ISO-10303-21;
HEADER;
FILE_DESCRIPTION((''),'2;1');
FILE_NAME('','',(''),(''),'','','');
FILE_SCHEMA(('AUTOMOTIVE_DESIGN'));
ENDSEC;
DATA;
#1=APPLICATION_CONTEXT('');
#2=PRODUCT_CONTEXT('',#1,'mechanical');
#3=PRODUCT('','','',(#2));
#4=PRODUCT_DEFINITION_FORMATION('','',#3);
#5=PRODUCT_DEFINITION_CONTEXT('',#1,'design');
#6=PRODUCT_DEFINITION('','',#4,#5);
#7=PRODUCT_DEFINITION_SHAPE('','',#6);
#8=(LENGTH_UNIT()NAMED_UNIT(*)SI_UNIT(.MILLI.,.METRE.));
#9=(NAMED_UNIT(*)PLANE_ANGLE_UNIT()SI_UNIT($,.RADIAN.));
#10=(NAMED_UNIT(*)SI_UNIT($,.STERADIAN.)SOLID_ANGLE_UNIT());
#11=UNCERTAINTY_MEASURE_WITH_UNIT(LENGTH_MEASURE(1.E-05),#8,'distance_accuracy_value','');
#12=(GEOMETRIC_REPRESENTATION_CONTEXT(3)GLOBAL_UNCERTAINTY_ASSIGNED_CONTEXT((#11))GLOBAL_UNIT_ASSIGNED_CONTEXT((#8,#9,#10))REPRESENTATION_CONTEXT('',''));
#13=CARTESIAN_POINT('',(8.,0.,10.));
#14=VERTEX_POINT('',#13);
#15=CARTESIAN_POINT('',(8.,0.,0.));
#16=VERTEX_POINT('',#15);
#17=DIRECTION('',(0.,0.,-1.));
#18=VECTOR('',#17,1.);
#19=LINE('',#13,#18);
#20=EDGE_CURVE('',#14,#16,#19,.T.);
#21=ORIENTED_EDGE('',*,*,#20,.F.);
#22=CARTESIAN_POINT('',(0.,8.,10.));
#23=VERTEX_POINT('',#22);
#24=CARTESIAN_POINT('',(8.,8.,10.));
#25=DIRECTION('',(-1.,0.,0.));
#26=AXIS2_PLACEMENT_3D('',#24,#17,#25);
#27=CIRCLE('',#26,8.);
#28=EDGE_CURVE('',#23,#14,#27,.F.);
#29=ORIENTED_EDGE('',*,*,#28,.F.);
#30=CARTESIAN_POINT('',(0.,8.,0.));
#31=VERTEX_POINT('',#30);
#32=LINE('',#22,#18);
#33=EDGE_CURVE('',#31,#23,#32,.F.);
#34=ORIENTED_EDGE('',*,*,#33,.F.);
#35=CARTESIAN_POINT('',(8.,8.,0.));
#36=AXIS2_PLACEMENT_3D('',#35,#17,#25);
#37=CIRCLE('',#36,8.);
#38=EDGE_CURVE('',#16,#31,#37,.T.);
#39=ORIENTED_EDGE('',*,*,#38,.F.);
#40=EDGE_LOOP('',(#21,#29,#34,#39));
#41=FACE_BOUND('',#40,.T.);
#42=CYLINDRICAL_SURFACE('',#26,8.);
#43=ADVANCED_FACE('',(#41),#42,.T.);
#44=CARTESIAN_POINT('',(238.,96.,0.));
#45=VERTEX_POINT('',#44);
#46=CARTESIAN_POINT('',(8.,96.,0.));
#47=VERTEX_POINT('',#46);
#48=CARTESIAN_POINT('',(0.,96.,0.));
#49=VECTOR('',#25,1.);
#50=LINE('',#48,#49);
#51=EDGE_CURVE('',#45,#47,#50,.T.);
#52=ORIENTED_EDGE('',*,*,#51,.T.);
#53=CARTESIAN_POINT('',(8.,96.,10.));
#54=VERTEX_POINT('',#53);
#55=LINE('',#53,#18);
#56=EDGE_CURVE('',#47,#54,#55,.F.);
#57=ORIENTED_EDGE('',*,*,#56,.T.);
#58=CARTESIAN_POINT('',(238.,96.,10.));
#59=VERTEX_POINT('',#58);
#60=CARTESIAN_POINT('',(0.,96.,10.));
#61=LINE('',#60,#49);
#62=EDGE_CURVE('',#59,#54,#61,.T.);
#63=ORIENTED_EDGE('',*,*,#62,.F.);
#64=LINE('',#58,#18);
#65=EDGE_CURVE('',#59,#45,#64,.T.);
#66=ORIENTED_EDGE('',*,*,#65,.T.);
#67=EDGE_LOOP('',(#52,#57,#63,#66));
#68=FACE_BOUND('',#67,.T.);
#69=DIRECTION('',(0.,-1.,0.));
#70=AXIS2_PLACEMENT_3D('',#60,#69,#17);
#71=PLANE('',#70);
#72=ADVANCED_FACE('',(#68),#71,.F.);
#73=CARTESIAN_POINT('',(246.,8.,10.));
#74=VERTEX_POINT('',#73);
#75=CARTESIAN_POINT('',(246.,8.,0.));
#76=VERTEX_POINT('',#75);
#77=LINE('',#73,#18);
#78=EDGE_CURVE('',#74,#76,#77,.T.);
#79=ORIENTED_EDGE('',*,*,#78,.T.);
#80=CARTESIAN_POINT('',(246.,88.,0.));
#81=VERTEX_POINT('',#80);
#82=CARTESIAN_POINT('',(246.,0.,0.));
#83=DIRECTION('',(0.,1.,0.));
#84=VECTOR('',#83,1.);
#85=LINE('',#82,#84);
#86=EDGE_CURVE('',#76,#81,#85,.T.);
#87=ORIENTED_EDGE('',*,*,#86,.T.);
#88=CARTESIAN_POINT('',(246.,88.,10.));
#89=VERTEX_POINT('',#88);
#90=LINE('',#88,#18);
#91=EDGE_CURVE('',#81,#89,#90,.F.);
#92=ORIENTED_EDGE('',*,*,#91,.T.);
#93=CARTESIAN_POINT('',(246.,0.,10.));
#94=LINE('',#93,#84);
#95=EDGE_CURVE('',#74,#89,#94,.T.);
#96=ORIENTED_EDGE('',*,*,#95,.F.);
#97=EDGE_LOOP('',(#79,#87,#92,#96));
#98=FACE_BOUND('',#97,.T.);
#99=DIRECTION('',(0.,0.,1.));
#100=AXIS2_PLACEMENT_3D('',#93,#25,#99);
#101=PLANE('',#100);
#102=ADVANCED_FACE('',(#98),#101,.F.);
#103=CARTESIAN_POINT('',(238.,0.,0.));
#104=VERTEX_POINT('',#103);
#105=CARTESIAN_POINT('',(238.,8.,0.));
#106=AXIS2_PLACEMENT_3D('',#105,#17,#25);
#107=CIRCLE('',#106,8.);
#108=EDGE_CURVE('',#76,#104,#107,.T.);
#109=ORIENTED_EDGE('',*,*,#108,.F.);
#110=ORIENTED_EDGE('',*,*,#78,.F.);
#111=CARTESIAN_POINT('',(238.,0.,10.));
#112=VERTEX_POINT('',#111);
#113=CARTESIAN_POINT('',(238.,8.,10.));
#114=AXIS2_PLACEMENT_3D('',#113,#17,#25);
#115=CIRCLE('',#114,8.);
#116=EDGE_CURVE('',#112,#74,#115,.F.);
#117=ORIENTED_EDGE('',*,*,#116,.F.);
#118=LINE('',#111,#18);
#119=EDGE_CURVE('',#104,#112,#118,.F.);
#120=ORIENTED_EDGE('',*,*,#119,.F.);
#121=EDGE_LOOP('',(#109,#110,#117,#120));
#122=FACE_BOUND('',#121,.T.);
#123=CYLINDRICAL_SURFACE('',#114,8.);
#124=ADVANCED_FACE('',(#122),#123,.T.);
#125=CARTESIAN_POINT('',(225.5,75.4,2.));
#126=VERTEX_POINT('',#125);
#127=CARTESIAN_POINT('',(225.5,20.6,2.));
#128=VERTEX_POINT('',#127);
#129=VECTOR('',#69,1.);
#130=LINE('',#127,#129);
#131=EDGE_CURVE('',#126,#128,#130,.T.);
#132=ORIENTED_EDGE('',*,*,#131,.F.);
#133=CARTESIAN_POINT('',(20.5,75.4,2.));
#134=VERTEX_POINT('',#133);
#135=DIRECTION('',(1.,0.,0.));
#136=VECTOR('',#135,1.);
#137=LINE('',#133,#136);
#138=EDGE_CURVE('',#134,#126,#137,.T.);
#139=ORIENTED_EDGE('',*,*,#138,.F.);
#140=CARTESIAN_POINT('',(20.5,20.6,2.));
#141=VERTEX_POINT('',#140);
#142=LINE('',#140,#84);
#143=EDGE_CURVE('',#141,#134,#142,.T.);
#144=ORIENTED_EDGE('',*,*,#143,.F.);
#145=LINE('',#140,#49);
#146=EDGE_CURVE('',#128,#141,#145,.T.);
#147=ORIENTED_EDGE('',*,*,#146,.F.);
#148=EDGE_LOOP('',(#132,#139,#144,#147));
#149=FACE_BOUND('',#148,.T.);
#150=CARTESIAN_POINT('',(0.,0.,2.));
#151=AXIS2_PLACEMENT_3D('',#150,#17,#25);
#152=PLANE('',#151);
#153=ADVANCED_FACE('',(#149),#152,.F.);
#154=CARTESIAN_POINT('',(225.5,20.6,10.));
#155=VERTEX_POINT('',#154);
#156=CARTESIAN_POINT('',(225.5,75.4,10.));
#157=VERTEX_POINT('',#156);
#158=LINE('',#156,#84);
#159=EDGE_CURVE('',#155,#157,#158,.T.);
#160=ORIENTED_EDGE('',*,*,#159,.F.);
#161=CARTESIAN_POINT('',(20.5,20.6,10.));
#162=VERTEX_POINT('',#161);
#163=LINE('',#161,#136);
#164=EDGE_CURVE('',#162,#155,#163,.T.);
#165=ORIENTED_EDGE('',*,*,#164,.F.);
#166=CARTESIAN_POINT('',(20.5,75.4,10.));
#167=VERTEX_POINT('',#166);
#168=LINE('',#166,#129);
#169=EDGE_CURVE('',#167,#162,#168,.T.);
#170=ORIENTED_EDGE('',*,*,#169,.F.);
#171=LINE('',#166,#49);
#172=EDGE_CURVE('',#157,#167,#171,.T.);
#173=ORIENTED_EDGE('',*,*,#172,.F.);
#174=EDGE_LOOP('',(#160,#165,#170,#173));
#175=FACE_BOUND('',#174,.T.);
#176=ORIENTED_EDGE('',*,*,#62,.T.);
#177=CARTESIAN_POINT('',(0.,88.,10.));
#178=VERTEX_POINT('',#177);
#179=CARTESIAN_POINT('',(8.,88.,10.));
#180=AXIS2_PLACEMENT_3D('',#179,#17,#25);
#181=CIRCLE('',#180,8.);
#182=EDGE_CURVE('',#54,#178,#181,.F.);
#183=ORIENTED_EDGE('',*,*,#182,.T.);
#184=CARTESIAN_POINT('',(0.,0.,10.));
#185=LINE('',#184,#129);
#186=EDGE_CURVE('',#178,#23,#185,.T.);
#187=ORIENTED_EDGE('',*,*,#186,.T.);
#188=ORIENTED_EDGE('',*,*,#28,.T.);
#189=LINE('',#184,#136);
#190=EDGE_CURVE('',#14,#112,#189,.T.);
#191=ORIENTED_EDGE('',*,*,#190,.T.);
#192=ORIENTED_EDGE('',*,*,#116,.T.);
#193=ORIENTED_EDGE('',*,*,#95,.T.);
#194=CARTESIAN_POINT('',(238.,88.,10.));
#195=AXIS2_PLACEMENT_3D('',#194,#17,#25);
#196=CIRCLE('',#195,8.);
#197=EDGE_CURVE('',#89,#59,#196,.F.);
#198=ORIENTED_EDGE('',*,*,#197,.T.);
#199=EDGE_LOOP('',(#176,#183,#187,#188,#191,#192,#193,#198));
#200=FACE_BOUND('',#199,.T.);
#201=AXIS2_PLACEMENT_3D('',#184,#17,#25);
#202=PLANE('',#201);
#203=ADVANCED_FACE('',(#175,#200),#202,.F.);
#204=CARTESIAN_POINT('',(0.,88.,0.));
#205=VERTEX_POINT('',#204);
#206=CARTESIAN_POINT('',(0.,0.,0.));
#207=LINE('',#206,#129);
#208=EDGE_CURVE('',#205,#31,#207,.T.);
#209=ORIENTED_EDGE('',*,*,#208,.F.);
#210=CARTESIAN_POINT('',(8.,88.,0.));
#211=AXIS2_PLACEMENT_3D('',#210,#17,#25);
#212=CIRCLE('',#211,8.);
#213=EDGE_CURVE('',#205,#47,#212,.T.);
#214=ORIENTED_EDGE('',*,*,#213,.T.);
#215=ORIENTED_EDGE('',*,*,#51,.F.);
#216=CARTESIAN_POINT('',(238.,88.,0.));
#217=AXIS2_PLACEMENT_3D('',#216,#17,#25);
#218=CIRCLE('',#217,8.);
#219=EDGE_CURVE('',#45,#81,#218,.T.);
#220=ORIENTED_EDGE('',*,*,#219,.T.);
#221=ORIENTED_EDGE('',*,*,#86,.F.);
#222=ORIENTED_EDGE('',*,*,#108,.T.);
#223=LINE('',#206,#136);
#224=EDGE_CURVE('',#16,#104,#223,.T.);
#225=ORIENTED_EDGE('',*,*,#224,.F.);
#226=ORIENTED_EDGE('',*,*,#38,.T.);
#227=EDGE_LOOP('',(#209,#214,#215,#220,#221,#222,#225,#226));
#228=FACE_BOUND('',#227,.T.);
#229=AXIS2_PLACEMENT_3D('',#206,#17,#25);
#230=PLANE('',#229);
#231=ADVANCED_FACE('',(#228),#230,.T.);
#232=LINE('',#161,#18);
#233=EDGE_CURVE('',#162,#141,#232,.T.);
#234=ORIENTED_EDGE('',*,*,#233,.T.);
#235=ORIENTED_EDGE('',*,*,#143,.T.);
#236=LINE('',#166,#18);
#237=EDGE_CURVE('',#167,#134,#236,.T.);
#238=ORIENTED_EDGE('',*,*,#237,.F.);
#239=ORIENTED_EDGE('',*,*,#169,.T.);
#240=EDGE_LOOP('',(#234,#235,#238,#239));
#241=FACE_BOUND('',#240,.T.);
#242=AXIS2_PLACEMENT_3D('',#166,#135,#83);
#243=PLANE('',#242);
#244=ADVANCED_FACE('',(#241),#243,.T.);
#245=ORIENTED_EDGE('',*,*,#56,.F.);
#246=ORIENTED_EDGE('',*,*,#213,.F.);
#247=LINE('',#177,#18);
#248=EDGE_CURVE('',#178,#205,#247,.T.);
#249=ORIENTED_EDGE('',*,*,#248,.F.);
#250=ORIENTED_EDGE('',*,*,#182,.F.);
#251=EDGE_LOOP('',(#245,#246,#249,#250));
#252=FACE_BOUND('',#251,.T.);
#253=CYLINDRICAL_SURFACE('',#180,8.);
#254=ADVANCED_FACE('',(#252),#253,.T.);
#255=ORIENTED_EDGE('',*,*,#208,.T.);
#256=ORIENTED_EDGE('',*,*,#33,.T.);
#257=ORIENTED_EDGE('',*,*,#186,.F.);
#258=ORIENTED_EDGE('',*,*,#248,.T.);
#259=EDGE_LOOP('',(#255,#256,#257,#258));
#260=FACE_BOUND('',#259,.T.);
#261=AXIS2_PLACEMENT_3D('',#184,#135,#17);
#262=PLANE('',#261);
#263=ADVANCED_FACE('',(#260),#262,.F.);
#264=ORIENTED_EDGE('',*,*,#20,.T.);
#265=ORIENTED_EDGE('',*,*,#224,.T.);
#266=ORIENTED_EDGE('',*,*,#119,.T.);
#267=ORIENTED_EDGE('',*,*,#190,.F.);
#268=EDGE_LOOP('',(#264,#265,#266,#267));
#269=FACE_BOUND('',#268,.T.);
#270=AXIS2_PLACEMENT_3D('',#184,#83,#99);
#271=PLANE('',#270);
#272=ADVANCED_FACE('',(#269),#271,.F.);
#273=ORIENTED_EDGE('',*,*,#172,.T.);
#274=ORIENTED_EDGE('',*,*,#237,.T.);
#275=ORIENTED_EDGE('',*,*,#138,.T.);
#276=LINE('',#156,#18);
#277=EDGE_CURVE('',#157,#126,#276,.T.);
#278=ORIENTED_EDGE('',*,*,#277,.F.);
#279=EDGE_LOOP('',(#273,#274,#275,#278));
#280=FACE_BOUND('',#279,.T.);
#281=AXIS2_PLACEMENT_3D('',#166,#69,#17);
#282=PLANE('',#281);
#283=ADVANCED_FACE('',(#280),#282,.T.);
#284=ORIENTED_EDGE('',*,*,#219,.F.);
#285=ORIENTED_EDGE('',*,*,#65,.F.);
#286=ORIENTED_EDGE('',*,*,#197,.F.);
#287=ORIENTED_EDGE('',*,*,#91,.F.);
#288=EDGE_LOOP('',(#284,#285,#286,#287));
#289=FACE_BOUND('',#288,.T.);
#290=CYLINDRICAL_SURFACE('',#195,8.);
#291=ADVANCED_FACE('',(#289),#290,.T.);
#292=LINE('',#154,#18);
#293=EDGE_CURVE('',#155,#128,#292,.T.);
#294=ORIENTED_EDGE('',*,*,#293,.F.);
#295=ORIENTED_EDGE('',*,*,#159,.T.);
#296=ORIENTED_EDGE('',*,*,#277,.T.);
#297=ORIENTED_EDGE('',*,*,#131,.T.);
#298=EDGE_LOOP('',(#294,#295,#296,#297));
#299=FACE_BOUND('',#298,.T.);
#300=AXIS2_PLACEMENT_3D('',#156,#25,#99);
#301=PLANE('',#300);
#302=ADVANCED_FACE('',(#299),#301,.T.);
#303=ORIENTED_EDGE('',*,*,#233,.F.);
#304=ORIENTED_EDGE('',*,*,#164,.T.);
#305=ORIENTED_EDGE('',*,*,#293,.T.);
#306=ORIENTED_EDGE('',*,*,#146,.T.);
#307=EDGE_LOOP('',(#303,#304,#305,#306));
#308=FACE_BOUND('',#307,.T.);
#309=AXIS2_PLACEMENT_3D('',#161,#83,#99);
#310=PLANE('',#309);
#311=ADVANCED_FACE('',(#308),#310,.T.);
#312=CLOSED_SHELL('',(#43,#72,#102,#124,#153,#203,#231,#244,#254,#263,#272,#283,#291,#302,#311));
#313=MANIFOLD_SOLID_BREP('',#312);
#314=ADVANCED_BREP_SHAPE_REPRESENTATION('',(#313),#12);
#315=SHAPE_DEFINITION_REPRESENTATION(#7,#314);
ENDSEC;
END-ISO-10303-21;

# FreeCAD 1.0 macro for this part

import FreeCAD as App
import Part
import Sketcher
from FreeCAD import Vector


def edges_at(feature, points):
    """Names of the edges that pass closest to the given points."""
    edges = feature.Shape.Edges
    near = lambda p: min(range(len(edges)), key=lambda i: edges[i].distToShape(Part.Vertex(*p))[0])
    return sorted({f"Edge{near(p) + 1}" for p in points})


def add_polygon(sketch, points):
    """Adds a closed chain of lines whose ends are joined by coincident constraints."""
    first, n = sketch.GeometryCount, len(points)
    for a, b in zip(points, points[1:] + points[:1]):
        sketch.addGeometry(Part.LineSegment(App.Vector(*a, 0), App.Vector(*b, 0)), False)
    for i in range(n):
        sketch.addConstraint(Sketcher.Constraint("Coincident", first + i, 2, first + (i + 1) % n, 1))

doc = App.newDocument("Part")
body = doc.addObject("PartDesign::Body", "Body")

sketch1 = doc.addObject("Sketcher::SketchObject", "Sketch")
body.addObject(sketch1)
sketch1.AttachmentSupport = (doc.XY_Plane, [""])
sketch1.MapMode = "FlatFace"
add_polygon(sketch1, [(0, 96), (0, 0), (246, 0), (246, 96)])
add_polygon(sketch1, [(226, 21), (20, 21), (20, 75), (226, 75)])
sketch1.addConstraint([
    Sketcher.Constraint("Vertical", 0),
    Sketcher.Constraint("Horizontal", 1),
    Sketcher.Constraint("Vertical", 2),
    Sketcher.Constraint("Horizontal", 3),
    Sketcher.Constraint("Horizontal", 4),
    Sketcher.Constraint("Vertical", 5),
    Sketcher.Constraint("Horizontal", 6),
    Sketcher.Constraint("Vertical", 7),
    Sketcher.Constraint("Coincident", 0, 2, -1, 1),
    Sketcher.Constraint("DistanceX", 1, 1, 1, 2, 246.0),
    Sketcher.Constraint("DistanceX", 4, 2, 4, 1, 205.0),
    Sketcher.Constraint("DistanceY", 0, 2, 0, 1, 96.0),
    Sketcher.Constraint("DistanceY", 5, 1, 5, 2, 54.8),
    Sketcher.Constraint("DistanceX", -1, 1, 4, 2, 20.5),
    Sketcher.Constraint("DistanceY", -1, 1, 4, 2, 20.6),
])
pad1 = doc.addObject("PartDesign::Pad", "Pad")
body.addObject(pad1)
pad1.Profile = sketch1
pad1.Length = 10
doc.recompute()

fillet = doc.addObject("PartDesign::Fillet", "Fillet")
body.addObject(fillet)
fillet.Base = (pad1, edges_at(pad1, [
    (0, 96, 5),
    (246, 96, 5),
    (246, 0, 5),
    (0, 0, 5),
]))
fillet.Radius = 8

sketch2 = doc.addObject("Sketcher::SketchObject", "Sketch001")
body.addObject(sketch2)
sketch2.AttachmentSupport = (doc.XY_Plane, [""])
sketch2.MapMode = "FlatFace"
add_polygon(sketch2, [(226, 75), (226, 21), (20, 21), (20, 75)])
sketch2.addConstraint([
    Sketcher.Constraint("Vertical", 0),
    Sketcher.Constraint("Horizontal", 1),
    Sketcher.Constraint("Vertical", 2),
    Sketcher.Constraint("Horizontal", 3),
    Sketcher.Constraint("DistanceX", 1, 2, 1, 1, 205.0),
    Sketcher.Constraint("DistanceY", 0, 2, 0, 1, 54.8),
    Sketcher.Constraint("DistanceX", -1, 1, 0, 2, 225.5),
    Sketcher.Constraint("DistanceY", -1, 1, 0, 2, 20.6),
])
pad2 = doc.addObject("PartDesign::Pad", "Pad001")
body.addObject(pad2)
pad2.Profile = sketch2
pad2.Length = 2

doc.recompute()
